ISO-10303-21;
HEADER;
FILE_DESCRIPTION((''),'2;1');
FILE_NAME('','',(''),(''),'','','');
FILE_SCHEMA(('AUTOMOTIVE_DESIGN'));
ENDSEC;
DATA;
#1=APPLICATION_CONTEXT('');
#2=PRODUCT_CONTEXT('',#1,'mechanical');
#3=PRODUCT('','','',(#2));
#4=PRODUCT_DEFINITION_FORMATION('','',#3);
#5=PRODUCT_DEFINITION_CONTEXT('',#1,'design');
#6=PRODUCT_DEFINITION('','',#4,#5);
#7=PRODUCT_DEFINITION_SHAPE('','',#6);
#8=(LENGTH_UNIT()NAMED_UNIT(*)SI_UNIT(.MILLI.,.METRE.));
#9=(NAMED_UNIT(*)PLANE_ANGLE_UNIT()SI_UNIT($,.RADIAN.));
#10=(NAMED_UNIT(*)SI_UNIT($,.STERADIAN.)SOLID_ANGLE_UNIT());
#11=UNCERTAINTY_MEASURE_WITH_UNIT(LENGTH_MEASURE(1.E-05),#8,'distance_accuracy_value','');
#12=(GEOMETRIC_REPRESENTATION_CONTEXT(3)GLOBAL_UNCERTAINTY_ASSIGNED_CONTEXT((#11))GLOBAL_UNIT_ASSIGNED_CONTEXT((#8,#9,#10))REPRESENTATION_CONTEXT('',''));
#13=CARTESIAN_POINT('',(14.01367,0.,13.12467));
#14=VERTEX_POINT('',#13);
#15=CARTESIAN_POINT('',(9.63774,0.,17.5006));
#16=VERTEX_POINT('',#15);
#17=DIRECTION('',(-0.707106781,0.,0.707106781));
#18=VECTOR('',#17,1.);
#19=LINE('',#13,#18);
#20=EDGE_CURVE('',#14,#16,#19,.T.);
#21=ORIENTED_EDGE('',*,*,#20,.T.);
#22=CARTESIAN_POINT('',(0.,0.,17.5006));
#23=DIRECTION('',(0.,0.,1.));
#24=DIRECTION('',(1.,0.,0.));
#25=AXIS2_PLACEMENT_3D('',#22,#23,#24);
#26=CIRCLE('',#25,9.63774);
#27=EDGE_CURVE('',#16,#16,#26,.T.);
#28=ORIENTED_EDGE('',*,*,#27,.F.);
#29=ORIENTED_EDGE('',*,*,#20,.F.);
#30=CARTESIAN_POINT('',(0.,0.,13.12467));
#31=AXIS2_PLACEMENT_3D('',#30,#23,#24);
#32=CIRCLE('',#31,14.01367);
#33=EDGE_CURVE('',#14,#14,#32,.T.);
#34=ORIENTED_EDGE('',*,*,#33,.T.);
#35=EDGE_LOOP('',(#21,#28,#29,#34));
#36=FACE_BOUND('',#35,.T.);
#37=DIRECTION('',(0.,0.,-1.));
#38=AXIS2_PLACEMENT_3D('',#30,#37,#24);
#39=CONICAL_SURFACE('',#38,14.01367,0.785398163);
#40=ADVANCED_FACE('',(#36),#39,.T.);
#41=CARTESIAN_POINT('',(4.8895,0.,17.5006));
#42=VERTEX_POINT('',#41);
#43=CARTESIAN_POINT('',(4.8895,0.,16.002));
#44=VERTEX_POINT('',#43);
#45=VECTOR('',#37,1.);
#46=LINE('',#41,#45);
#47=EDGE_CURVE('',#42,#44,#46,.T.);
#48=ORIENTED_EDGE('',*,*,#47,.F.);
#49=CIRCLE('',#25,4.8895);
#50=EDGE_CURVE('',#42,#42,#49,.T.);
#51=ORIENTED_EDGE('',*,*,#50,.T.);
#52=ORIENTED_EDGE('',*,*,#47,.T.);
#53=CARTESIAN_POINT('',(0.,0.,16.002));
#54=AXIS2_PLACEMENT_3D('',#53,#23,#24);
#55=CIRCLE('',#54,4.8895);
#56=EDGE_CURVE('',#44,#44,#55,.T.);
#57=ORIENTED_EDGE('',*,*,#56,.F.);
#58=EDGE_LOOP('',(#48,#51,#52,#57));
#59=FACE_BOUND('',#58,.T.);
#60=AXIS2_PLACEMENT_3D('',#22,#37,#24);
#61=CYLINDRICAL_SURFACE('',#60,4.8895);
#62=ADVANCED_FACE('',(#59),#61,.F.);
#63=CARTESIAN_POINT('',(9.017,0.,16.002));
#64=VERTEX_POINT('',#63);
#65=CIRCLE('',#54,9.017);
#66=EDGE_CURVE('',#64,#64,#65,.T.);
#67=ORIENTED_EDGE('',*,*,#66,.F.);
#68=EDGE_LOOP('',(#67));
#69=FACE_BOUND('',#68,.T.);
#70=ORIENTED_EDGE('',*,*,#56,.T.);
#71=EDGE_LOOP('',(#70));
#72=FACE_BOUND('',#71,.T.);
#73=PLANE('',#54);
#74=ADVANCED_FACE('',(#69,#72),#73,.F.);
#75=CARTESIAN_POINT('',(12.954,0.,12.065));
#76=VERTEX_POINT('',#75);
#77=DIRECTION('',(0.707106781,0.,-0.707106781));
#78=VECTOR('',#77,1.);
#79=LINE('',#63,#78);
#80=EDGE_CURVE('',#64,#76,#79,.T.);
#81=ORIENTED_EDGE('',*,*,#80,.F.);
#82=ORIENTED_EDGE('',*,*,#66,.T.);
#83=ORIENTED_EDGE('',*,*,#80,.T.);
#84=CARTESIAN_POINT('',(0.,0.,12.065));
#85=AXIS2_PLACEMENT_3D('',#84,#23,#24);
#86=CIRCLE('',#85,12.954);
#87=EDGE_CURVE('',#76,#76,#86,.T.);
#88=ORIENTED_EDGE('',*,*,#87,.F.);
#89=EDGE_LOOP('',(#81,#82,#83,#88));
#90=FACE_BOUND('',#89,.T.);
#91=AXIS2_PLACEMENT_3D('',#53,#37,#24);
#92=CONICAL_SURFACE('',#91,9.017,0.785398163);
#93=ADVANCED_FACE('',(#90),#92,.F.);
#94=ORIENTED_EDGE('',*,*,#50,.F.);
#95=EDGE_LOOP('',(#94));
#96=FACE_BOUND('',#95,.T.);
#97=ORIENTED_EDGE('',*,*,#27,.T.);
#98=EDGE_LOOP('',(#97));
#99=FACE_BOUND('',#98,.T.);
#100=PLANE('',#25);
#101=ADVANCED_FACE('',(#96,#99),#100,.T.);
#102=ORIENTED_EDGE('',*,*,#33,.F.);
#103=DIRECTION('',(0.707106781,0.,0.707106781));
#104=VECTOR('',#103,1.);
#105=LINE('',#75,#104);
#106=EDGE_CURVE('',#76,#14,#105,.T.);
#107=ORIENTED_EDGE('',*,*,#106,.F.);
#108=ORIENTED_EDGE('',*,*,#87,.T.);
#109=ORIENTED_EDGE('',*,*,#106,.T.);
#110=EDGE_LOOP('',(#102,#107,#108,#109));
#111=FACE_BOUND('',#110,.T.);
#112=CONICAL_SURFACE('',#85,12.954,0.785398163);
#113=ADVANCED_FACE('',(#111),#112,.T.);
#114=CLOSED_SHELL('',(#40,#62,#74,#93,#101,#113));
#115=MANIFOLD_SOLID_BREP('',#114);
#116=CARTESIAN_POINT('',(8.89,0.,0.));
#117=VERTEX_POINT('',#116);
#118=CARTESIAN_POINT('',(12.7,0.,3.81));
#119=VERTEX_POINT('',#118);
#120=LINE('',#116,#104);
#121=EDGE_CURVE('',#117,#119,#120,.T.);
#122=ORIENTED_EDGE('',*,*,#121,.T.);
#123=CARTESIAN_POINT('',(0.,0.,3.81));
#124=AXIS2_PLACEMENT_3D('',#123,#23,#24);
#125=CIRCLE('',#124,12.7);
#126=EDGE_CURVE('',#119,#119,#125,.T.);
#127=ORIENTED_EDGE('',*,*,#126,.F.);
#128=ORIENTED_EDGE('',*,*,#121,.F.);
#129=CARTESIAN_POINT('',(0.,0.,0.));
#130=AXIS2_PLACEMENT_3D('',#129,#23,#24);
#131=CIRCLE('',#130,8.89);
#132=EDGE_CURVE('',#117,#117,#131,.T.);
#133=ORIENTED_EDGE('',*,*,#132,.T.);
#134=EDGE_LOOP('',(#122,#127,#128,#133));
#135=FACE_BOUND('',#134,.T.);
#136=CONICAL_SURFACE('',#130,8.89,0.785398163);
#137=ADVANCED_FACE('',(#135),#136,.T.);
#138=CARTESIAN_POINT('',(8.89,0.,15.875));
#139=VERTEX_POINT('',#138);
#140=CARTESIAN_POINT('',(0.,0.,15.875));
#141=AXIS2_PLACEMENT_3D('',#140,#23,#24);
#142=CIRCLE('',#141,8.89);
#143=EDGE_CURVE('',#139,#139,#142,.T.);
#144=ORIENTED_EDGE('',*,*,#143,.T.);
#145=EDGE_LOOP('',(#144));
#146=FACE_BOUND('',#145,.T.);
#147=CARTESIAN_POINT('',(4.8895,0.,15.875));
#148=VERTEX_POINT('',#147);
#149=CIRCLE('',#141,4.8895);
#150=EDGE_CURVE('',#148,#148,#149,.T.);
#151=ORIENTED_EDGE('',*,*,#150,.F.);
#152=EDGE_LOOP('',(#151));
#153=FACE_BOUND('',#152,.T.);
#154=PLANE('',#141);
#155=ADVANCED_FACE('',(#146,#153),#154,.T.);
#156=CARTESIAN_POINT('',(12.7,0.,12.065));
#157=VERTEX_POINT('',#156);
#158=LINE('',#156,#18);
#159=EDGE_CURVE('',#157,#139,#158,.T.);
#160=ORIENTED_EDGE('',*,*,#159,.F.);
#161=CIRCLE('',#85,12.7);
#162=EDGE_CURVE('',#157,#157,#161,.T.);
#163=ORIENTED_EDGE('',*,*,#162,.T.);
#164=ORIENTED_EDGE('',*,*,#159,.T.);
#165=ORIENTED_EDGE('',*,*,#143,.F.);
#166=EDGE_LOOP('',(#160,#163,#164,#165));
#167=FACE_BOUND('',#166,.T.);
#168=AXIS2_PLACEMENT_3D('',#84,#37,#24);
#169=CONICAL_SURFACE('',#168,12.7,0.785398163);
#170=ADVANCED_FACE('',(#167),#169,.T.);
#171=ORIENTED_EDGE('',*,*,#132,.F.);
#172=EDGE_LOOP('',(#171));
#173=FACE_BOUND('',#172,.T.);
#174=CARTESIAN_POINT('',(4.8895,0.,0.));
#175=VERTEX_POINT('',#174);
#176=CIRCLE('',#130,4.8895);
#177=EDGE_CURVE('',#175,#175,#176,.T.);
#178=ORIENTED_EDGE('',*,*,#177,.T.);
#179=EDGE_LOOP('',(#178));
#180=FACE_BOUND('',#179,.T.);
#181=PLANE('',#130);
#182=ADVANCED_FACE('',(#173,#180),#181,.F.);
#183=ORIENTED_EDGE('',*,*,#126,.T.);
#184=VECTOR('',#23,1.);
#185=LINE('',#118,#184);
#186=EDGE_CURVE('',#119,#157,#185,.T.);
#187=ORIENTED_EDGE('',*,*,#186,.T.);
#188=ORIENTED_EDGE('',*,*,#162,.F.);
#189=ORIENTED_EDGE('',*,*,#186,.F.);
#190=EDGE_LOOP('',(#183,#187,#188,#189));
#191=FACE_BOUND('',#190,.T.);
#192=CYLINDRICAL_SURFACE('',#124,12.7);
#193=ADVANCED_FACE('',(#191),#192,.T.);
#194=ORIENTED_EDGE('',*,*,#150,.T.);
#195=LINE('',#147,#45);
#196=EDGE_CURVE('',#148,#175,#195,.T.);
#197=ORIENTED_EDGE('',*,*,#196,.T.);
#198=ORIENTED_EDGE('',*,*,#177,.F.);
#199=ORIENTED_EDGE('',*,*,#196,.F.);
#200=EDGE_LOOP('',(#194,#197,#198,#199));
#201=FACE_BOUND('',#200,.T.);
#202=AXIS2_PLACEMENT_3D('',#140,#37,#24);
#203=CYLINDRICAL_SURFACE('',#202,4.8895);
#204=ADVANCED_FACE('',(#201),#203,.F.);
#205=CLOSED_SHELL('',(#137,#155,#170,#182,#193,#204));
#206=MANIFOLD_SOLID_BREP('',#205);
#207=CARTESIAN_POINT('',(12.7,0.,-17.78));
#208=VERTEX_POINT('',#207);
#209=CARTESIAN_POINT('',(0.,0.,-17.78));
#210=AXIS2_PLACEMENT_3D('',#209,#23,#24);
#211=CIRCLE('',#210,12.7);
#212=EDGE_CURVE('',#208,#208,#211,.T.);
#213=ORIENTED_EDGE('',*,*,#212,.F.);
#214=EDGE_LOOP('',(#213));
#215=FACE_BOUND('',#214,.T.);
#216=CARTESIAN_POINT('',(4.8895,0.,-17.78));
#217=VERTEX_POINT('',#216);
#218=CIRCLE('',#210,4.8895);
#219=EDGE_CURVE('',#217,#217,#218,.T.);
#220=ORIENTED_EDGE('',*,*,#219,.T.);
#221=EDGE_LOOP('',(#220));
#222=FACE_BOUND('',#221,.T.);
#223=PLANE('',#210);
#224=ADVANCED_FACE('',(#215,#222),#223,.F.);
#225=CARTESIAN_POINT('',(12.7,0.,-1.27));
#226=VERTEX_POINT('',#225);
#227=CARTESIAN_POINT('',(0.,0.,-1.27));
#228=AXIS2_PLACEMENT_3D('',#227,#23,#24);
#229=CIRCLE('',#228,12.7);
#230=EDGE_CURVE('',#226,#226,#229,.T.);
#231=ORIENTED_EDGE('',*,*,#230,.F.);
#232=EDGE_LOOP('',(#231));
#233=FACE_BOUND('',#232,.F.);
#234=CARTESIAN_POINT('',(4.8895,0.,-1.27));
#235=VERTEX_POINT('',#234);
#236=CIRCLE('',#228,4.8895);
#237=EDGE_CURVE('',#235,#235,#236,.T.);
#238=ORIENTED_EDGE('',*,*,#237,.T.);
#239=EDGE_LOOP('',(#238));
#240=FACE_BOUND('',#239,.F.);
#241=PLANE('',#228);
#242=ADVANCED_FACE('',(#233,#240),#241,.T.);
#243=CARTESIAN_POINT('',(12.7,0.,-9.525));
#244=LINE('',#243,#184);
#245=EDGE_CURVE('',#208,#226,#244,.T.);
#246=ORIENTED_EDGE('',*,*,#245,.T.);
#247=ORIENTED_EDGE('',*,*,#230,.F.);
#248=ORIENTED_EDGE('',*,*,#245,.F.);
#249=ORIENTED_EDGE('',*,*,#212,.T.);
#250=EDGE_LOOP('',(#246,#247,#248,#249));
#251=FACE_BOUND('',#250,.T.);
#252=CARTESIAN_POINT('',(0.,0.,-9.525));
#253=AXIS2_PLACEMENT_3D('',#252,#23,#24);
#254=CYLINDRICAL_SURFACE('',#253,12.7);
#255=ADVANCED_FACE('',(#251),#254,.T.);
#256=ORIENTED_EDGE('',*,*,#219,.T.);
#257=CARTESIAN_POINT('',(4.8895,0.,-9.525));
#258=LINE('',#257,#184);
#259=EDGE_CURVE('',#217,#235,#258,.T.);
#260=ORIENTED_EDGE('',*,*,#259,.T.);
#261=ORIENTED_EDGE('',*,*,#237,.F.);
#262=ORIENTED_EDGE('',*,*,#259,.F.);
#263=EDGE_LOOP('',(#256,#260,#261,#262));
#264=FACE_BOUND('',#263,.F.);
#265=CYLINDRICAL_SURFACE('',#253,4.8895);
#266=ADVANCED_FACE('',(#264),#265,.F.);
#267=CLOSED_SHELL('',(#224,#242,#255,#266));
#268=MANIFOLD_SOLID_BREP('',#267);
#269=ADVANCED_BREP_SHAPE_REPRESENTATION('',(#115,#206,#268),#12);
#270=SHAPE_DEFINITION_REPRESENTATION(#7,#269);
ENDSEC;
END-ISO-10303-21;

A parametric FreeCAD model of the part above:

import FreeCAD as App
import Part
import Sketcher
from FreeCAD import Vector
Q = App.Units.Quantity


def add_polygon(sketch, points):
    """Adds a closed chain of lines whose ends are joined by coincident constraints."""
    first, n = sketch.GeometryCount, len(points)
    for a, b in zip(points, points[1:] + points[:1]):
        sketch.addGeometry(Part.LineSegment(App.Vector(*a, 0), App.Vector(*b, 0)), False)
    for i in range(n):
        sketch.addConstraint(Sketcher.Constraint("Coincident", first + i, 2, first + (i + 1) % n, 1))

doc = App.newDocument("Part")
body = doc.addObject("PartDesign::Body", "Body")
body.AllowCompound = True

# Sketch on XZ plane
sketch1 = doc.addObject("Sketcher::SketchObject", "Sketch")
body.addObject(sketch1)
sketch1.AttachmentSupport = (doc.XZ_Plane, [""])
sketch1.MapMode = "FlatFace"
add_polygon(sketch1, [(4.9, -1.3), (4.9, -17.8), (12.7, -17.8), (12.7, -1.3)])  # lines 0-3
add_polygon(sketch1, [(4.9, 15.9), (4.9, 0), (8.9, 0), (12.7, 3.8), (12.7, 12.1), (8.9, 15.9)])  # lines 4-9
add_polygon(sketch1, [(4.9, 17.5), (4.9, 16), (9, 16), (13, 12.1), (14, 13.1), (9.6, 17.5)])  # lines 10-15
sketch1.addConstraint([
    Sketcher.Constraint("Vertical", 0),
    Sketcher.Constraint("Horizontal", 1),
    Sketcher.Constraint("Vertical", 2),
    Sketcher.Constraint("Horizontal", 3),
    Sketcher.Constraint("Vertical", 4),
    Sketcher.Constraint("Horizontal", 5),
    Sketcher.Constraint("Vertical", 7),
    Sketcher.Constraint("Horizontal", 9),
    Sketcher.Constraint("Vertical", 10),
    Sketcher.Constraint("Horizontal", 11),
    Sketcher.Constraint("Horizontal", 15),
    Sketcher.Constraint("PointOnObject", 4, 2, -1),
    Sketcher.Constraint("Perpendicular", 6, 8),
    Sketcher.Constraint("Parallel", 8, 12),
    Sketcher.Constraint("Perpendicular", 12, 13),
    Sketcher.Constraint("Perpendicular", 13, 14),
    Sketcher.Constraint("Horizontal", 7, 2, 12, 2),
    Sketcher.Constraint("Vertical", 3, 2, 4, 2),
    Sketcher.Constraint("Vertical", 2, 2, 6, 2),
    Sketcher.Constraint("Vertical", 5, 2, 8, 2),
    Sketcher.Constraint("Vertical", 9, 2, 10, 2),
    Sketcher.Constraint("Equal", 6, 8),
    Sketcher.Constraint("DistanceY", 0, 2, 0, 1, Q("0.65 in")),
    Sketcher.Constraint("DistanceY", 0, 2, -1, 1, Q("0.7 in")),
    Sketcher.Constraint("DistanceX", -1, 1, 1, 2, Q("0.5 in")),
    Sketcher.Constraint("DistanceY", 2, 2, 6, 2, Q("0.2 in")),
    Sketcher.Constraint("DistanceY", 4, 2, 4, 1, Q("0.625 in")),
    Sketcher.Constraint("DistanceY", 10, 2, 10, 1, Q("0.059 in")),
    Sketcher.Constraint("DistanceY", -1, 1, 10, 2, Q("0.63 in")),
    Sketcher.Constraint("DistanceX", -1, 1, 12, 2, Q("0.51 in")),
    Sketcher.Constraint("Distance", 13, Q("0.059 in")),
    Sketcher.Constraint("DistanceX", 1, 1, 1, 2, Q("0.3075 in")),
])
revolution = doc.addObject("PartDesign::Revolution", "Revolution")
body.addObject(revolution)
revolution.Profile = sketch1
revolution.ReferenceAxis = (sketch1, ["V_Axis"])
revolution.Angle = 360

doc.recompute()
